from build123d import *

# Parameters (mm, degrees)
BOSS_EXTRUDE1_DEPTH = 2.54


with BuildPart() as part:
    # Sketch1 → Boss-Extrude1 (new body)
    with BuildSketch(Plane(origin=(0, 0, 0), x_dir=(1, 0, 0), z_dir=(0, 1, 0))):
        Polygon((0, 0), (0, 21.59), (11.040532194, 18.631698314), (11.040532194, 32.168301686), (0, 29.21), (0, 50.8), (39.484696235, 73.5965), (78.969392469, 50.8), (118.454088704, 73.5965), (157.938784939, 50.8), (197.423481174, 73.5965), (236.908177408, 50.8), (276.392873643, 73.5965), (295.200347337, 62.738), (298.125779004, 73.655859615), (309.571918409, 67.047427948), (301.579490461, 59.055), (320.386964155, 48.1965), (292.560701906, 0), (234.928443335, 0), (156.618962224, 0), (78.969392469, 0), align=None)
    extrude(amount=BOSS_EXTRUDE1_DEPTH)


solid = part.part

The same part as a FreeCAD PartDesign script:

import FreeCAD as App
import Part
import Sketcher
Q = App.Units.Quantity

doc = App.newDocument("Part")
body = doc.addObject("PartDesign::Body", "Body")

sketch1 = body.newObject("Sketcher::SketchObject", "Sketch")
sketch1.AttachmentSupport = (doc.getObject("XZ_Plane"), [""])
sketch1.MapMode = "FlatFace"
sketch1.addGeometry([
    Part.LineSegment(App.Vector(0, -22, 0), App.Vector(0, 0, 0)),
    Part.LineSegment(App.Vector(0, 0, 0), App.Vector(293, 0, 0)),
    Part.LineSegment(App.Vector(293, 0, 0), App.Vector(320, -48, 0)),
    Part.LineSegment(App.Vector(320, -48, 0), App.Vector(302, -59, 0)),
    Part.LineSegment(App.Vector(302, -59, 0), App.Vector(310, -67, 0)),
    Part.LineSegment(App.Vector(310, -67, 0), App.Vector(298, -74, 0)),
    Part.LineSegment(App.Vector(298, -74, 0), App.Vector(295, -63, 0)),
    Part.LineSegment(App.Vector(295, -63, 0), App.Vector(276, -74, 0)),
    Part.LineSegment(App.Vector(276, -74, 0), App.Vector(237, -51, 0)),
    Part.LineSegment(App.Vector(237, -51, 0), App.Vector(197, -74, 0)),
    Part.LineSegment(App.Vector(197, -74, 0), App.Vector(158, -51, 0)),
    Part.LineSegment(App.Vector(158, -51, 0), App.Vector(118, -74, 0)),
    Part.LineSegment(App.Vector(118, -74, 0), App.Vector(79, -51, 0)),
    Part.LineSegment(App.Vector(79, -51, 0), App.Vector(39, -74, 0)),
    Part.LineSegment(App.Vector(39, -74, 0), App.Vector(0, -51, 0)),
    Part.LineSegment(App.Vector(0, -51, 0), App.Vector(0, -29, 0)),
    Part.LineSegment(App.Vector(0, -29, 0), App.Vector(11, -32, 0)),
    Part.LineSegment(App.Vector(11, -32, 0), App.Vector(11, -19, 0)),
    Part.LineSegment(App.Vector(11, -19, 0), App.Vector(0, -22, 0)),
], False)
sketch1.addConstraint([
    Sketcher.Constraint("Coincident", 0, 2, 1, 1),
    Sketcher.Constraint("Coincident", 1, 2, 2, 1),
    Sketcher.Constraint("Coincident", 2, 2, 3, 1),
    Sketcher.Constraint("Coincident", 3, 2, 4, 1),
    Sketcher.Constraint("Coincident", 4, 2, 5, 1),
    Sketcher.Constraint("Coincident", 5, 2, 6, 1),
    Sketcher.Constraint("Coincident", 6, 2, 7, 1),
    Sketcher.Constraint("Coincident", 7, 2, 8, 1),
    Sketcher.Constraint("Coincident", 8, 2, 9, 1),
    Sketcher.Constraint("Coincident", 9, 2, 10, 1),
    Sketcher.Constraint("Coincident", 10, 2, 11, 1),
    Sketcher.Constraint("Coincident", 11, 2, 12, 1),
    Sketcher.Constraint("Coincident", 12, 2, 13, 1),
    Sketcher.Constraint("Coincident", 13, 2, 14, 1),
    Sketcher.Constraint("Coincident", 14, 2, 15, 1),
    Sketcher.Constraint("Coincident", 15, 2, 16, 1),
    Sketcher.Constraint("Coincident", 16, 2, 17, 1),
    Sketcher.Constraint("Coincident", 17, 2, 18, 1),
    Sketcher.Constraint("Coincident", 18, 2, 0, 1),
    Sketcher.Constraint("Vertical", 0),
    Sketcher.Constraint("Horizontal", 1),
    Sketcher.Constraint("Vertical", 15),
    Sketcher.Constraint("Vertical", 17),
    Sketcher.Constraint("Coincident", 0, 2, -1, 1),
    Sketcher.Constraint("PointOnObject", 14, 2, -2),
    Sketcher.Constraint("Perpendicular", 2, 3),
    Sketcher.Constraint("Parallel", 3, 5),
    Sketcher.Constraint("Parallel", 5, 7),
    Sketcher.Constraint("Parallel", 7, 9),
    Sketcher.Constraint("Parallel", 8, 10),
    Sketcher.Constraint("Parallel", 9, 11),
    Sketcher.Constraint("Parallel", 10, 12),
    Sketcher.Constraint("Parallel", 11, 13),
    Sketcher.Constraint("Parallel", 12, 14),
    Sketcher.Constraint("Perpendicular", 6, 18),
    Sketcher.Constraint("Horizontal", 7, 2, 9, 2),
    Sketcher.Constraint("Horizontal", 8, 2, 10, 2),
    Sketcher.Constraint("Horizontal", 9, 2, 11, 2),
    Sketcher.Constraint("Horizontal", 10, 2, 12, 2),
    Sketcher.Constraint("Horizontal", 11, 2, 13, 2),
    Sketcher.Constraint("Horizontal", 12, 2, 14, 2),
    Sketcher.Constraint("Equal", 0, 15),
    Sketcher.Constraint("Equal", 4, 6),
    Sketcher.Constraint("Equal", 3, 7),
    Sketcher.Constraint("Equal", 8, 9),
    Sketcher.Constraint("Equal", 16, 18),
    Sketcher.Constraint("DistanceY", 8, 2, -1, 1, Q("2 in")),
    Sketcher.Constraint("Angle", 2, Q("-60 deg")),
    Sketcher.Constraint("Angle", 4, Q("-45 deg")),
    Sketcher.Constraint("Angle", 6, Q("105 deg")),
    Sketcher.Constraint("DistanceY", 7, 2, 2, 2, Q("1 in")),
    Sketcher.Constraint("DistanceY", 0, 1, 0, 2, Q("0.85 in")),
    Sketcher.Constraint("Distance", 16, Q("0.45 in")),
    Sketcher.Constraint("DistanceY", 6, 2, -1, 1, Q("2.47 in")),
    Sketcher.Constraint("Distance", 3, Q("0.855 in")),
    Sketcher.Constraint("Distance", 4, Q("0.445 in")),
])
pad1 = body.newObject("PartDesign::Pad", "Pad")
pad1.Profile = sketch1
pad1.Length = Q("0.1 in")
pad1.Reversed = True

doc.recompute()
